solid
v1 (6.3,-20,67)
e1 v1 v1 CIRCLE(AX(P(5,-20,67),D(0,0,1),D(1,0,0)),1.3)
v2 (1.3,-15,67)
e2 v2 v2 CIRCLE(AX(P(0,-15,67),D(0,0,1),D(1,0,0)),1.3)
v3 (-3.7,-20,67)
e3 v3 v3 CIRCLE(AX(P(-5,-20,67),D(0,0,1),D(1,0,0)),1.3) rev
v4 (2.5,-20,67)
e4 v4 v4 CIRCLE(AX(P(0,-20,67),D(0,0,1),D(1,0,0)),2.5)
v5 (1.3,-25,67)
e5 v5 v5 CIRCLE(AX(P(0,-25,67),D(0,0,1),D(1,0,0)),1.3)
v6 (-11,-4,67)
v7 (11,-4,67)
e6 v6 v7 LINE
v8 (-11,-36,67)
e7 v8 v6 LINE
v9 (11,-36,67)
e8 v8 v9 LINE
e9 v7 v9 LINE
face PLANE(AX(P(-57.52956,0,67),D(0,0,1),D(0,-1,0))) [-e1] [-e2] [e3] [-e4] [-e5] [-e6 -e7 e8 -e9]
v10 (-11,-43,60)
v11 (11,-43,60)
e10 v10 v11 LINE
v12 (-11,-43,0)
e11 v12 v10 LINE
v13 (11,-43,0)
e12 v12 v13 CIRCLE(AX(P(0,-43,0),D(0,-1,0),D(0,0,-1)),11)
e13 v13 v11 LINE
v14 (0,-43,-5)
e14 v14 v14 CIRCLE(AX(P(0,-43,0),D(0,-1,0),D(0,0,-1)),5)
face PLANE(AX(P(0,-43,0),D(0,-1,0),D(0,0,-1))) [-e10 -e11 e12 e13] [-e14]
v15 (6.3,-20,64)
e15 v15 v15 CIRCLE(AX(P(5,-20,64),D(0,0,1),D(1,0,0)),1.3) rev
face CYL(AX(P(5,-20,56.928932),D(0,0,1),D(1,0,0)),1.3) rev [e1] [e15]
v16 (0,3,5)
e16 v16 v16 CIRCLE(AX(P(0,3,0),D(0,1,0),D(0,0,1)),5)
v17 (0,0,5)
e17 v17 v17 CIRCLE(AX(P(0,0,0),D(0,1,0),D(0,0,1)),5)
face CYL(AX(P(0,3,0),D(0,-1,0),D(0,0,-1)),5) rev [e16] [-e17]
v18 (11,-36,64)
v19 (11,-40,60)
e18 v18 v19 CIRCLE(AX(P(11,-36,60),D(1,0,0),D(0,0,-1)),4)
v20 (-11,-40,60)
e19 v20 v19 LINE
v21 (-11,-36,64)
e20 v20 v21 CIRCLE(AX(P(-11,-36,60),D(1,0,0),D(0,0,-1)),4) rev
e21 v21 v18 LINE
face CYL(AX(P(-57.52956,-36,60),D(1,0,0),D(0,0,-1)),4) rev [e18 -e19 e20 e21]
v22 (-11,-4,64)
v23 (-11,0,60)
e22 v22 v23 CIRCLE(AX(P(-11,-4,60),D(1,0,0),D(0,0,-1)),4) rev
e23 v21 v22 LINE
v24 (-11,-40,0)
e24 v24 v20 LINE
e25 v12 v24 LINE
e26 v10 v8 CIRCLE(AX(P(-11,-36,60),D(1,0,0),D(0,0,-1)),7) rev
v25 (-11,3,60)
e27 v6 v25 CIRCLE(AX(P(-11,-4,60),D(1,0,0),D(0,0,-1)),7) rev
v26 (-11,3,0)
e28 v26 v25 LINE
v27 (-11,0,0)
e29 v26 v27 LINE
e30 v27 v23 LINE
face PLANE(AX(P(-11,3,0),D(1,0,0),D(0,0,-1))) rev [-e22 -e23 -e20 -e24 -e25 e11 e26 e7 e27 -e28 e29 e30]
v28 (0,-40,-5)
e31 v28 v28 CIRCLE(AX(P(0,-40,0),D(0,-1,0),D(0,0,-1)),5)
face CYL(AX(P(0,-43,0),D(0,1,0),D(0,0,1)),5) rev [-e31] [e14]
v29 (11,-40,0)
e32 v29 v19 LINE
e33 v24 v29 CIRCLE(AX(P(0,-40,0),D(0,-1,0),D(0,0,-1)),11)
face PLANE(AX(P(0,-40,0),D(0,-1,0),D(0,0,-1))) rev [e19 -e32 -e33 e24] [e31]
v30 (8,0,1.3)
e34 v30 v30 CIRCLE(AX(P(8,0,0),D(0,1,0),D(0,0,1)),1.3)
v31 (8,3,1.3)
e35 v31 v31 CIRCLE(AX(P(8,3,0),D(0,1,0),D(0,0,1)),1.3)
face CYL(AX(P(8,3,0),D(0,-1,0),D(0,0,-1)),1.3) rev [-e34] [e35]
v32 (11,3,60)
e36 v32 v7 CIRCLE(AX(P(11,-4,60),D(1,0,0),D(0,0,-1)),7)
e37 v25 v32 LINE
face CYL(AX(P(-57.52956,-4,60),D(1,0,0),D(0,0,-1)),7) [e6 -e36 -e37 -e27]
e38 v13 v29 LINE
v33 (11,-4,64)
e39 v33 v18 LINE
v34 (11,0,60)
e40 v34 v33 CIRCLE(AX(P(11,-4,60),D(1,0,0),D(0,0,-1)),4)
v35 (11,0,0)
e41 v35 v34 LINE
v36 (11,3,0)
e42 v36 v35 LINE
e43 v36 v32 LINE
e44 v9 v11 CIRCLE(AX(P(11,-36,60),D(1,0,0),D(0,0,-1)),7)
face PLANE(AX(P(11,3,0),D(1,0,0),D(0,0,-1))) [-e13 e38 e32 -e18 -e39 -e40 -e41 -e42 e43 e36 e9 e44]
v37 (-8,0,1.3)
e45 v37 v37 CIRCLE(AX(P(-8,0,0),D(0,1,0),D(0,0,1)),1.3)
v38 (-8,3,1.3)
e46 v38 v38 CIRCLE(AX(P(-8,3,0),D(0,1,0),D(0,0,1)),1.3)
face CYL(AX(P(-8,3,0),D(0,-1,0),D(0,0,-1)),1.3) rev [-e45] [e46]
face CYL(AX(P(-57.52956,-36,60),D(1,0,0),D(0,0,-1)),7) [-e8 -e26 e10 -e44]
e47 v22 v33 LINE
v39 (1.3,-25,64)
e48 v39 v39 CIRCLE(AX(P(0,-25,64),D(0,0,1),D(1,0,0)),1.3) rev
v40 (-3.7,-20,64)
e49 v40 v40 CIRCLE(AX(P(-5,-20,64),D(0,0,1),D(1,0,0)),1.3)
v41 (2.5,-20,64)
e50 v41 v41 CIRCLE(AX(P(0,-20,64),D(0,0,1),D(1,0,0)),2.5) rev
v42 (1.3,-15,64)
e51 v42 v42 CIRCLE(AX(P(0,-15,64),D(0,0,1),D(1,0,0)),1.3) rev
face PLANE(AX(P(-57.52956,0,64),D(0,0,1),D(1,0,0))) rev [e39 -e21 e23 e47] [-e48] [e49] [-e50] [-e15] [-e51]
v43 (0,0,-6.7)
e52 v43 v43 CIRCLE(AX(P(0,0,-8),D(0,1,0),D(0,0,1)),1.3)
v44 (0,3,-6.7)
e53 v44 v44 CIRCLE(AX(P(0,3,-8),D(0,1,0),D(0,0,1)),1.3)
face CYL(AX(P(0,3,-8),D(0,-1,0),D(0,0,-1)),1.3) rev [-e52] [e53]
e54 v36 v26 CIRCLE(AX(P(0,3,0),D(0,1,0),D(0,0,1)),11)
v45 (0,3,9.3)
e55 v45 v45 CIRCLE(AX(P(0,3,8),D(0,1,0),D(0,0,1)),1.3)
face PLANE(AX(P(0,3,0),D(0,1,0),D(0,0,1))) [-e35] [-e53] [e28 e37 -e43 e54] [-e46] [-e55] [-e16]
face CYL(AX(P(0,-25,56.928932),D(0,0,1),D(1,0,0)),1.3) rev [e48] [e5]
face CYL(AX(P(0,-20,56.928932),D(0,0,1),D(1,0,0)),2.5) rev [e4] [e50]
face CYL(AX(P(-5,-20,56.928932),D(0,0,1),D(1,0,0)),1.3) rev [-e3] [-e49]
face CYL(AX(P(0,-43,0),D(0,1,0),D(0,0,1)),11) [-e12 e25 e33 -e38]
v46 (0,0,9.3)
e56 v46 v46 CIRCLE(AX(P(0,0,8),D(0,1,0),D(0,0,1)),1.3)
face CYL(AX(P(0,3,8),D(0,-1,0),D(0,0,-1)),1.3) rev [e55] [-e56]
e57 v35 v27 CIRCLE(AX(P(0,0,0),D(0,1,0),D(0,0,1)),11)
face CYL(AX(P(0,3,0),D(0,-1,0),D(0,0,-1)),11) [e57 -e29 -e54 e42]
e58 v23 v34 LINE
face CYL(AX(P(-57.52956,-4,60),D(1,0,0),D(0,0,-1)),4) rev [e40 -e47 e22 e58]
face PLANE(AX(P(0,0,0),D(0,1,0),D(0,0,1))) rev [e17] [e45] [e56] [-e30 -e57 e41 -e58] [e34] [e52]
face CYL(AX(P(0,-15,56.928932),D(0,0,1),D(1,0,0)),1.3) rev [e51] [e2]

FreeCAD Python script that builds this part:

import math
import FreeCAD as App
import Part
import Sketcher

doc = App.newDocument("Part")
body = doc.addObject("PartDesign::Body", "Body")

sketch1 = body.newObject("Sketcher::SketchObject", "Sketch")
sketch1.AttachmentSupport = (doc.getObject("XZ_Plane"), [""])
sketch1.MapMode = "FlatFace"
sketch1.addGeometry([
    Part.LineSegment(App.Vector(11, 60, 0), App.Vector(11, 0, 0)),
    Part.ArcOfCircle(Part.Circle(App.Vector(0, 0, 0), App.Vector(0, 0, 1), 11), math.radians(180), math.radians(360)),
    Part.LineSegment(App.Vector(-11, 0, 0), App.Vector(-11, 60, 0)),
    Part.LineSegment(App.Vector(-11, 60, 0), App.Vector(11, 60, 0)),
    Part.Circle(App.Vector(0, 8, 0), App.Vector(0, 0, 1), 1.3),
    Part.Circle(App.Vector(8, 0, 0), App.Vector(0, 0, 1), 1.3),
    Part.Circle(App.Vector(-8, 0, 0), App.Vector(0, 0, 1), 1.3),
    Part.Circle(App.Vector(0, 0, 0), App.Vector(0, 0, 1), 5),
    Part.Circle(App.Vector(0, -8, 0), App.Vector(0, 0, 1), 1.3),
], False)
sketch1.addConstraint([
    Sketcher.Constraint("Tangent", 0, 2, 1, 2),
    Sketcher.Constraint("Tangent", 1, 1, 2, 1),
    Sketcher.Constraint("Coincident", 2, 2, 3, 1),
    Sketcher.Constraint("Coincident", 3, 2, 0, 1),
    Sketcher.Constraint("Vertical", 0),
    Sketcher.Constraint("Vertical", 2),
    Sketcher.Constraint("Horizontal", 3),
    Sketcher.Constraint("Coincident", 1, 3, -1, 1),
    Sketcher.Constraint("Coincident", 7, 3, -1, 1),
    Sketcher.Constraint("Equal", 4, 5),
    Sketcher.Constraint("Equal", 5, 6),
    Sketcher.Constraint("Equal", 6, 8),
    Sketcher.Constraint("Symmetric", 5, 3, 6, 3, -1, 1),
    Sketcher.Constraint("Symmetric", 4, 3, 8, 3, -1, 1),
    Sketcher.Constraint("PointOnObject", 4, 3, -2),
    Sketcher.Constraint("PointOnObject", 5, 3, -1),
    Sketcher.Constraint("Diameter", 7, 10.0),
    Sketcher.Constraint("Radius", 1, 11.0),
    Sketcher.Constraint("Diameter", 4, 2.6),
    Sketcher.Constraint("DistanceY", 0, 2, 0, 1, 60.0),
    Sketcher.Constraint("DistanceY", -1, 1, 4, 3, 8.0),
    Sketcher.Constraint("DistanceX", -1, 1, 5, 3, 8.0),
])
pad1 = body.newObject("PartDesign::Pad", "Pad")
pad1.Profile = sketch1
pad1.Length = 3
pad1.Reversed = True

sketch2 = body.newObject("Sketcher::SketchObject", "Sketch001")
sketch2.AttachmentSupport = (doc.getObject("YZ_Plane"), [""])
sketch2.MapMode = "FlatFace"
sketch2.AttachmentOffset = App.Placement(App.Vector(0, 0, 11), App.Rotation())
sketch2.addGeometry([
    Part.LineSegment(App.Vector(-4, 67, 0), App.Vector(-36, 67, 0)),
    Part.ArcOfCircle(Part.Circle(App.Vector(-36, 60, 0), App.Vector(0, 0, 1), 7), math.radians(90), math.radians(180)),
    Part.LineSegment(App.Vector(-43, 60, 0), App.Vector(-40, 60, 0)),
    Part.ArcOfCircle(Part.Circle(App.Vector(-36, 60, 0), App.Vector(0, 0, 1), 4), math.radians(90), math.radians(180)),
    Part.LineSegment(App.Vector(-36, 64, 0), App.Vector(-4, 64, 0)),
    Part.ArcOfCircle(Part.Circle(App.Vector(-4, 60, 0), App.Vector(0, 0, 1), 4), math.radians(0), math.radians(90)),
    Part.LineSegment(App.Vector(0, 60, 0), App.Vector(3, 60, 0)),
    Part.ArcOfCircle(Part.Circle(App.Vector(-4, 60, 0), App.Vector(0, 0, 1), 7), math.radians(0), math.radians(90)),
], False)
sketch2.addConstraint([
    Sketcher.Constraint("Tangent", 0, 2, 1, 1),
    Sketcher.Constraint("Coincident", 1, 2, 2, 1),
    Sketcher.Constraint("Coincident", 2, 2, 3, 2),
    Sketcher.Constraint("Tangent", 3, 1, 4, 1),
    Sketcher.Constraint("Tangent", 4, 2, 5, 2),
    Sketcher.Constraint("Coincident", 5, 1, 6, 1),
    Sketcher.Constraint("Coincident", 6, 2, 7, 1),
    Sketcher.Constraint("Tangent", 7, 2, 0, 1),
    Sketcher.Constraint("Horizontal", 0),
    Sketcher.Constraint("Horizontal", 2),
    Sketcher.Constraint("Horizontal", 4),
    Sketcher.Constraint("Horizontal", 6),
    Sketcher.Constraint("Coincident", 3, 3, 1, 3),
    Sketcher.Constraint("Coincident", 7, 3, 5, 3),
    Sketcher.Constraint("Equal", 3, 5),
    Sketcher.Constraint("PointOnObject", 5, 1, -2),
    Sketcher.Constraint("Horizontal", 7, 3, 1, 2),
    Sketcher.Constraint("Horizontal", 2, 2, 5, 1),
    Sketcher.Constraint("Radius", 1, 7.0),
    Sketcher.Constraint("Radius", 3, 4.0),
    Sketcher.Constraint("DistanceX", 0, 2, 0, 1, 32.0),
    Sketcher.Constraint("DistanceY", -1, 1, 1, 3, 60.0),
])
pad2 = body.newObject("PartDesign::Pad", "Pad001")
pad2.Profile = sketch2
pad2.Length = 22
pad2.Reversed = True

sketch3 = body.newObject("Sketcher::SketchObject", "Sketch002")
sketch3.AttachmentSupport = (doc.getObject("XZ_Plane"), [""])
sketch3.MapMode = "FlatFace"
sketch3.AttachmentOffset = App.Placement(App.Vector(0, 0, 43), App.Rotation())
sketch3.addGeometry([
    Part.LineSegment(App.Vector(11, 0, 0), App.Vector(11, 60, 0)),
    Part.LineSegment(App.Vector(11, 60, 0), App.Vector(-11, 60, 0)),
    Part.LineSegment(App.Vector(-11, 60, 0), App.Vector(-11, 0, 0)),
    Part.ArcOfCircle(Part.Circle(App.Vector(0, 0, 0), App.Vector(0, 0, 1), 11), math.radians(180), math.radians(360)),
    Part.Circle(App.Vector(0, 0, 0), App.Vector(0, 0, 1), 5),
], False)
sketch3.addConstraint([
    Sketcher.Constraint("Coincident", 0, 2, 1, 1),
    Sketcher.Constraint("Coincident", 1, 2, 2, 1),
    Sketcher.Constraint("Tangent", 2, 2, 3, 1),
    Sketcher.Constraint("Tangent", 3, 2, 0, 1),
    Sketcher.Constraint("Vertical", 0),
    Sketcher.Constraint("Horizontal", 1),
    Sketcher.Constraint("Vertical", 2),
    Sketcher.Constraint("Coincident", 3, 3, -1, 1),
    Sketcher.Constraint("Coincident", 4, 3, -1, 1),
    Sketcher.Constraint("Diameter", 4, 10.0),
    Sketcher.Constraint("Radius", 3, 11.0),
    Sketcher.Constraint("DistanceY", 0, 1, 0, 2, 60.0),
])
pad3 = body.newObject("PartDesign::Pad", "Pad002")
pad3.Profile = sketch3
pad3.Length = 3
pad3.Reversed = True

sketch4 = body.newObject("Sketcher::SketchObject", "Sketch003")
sketch4.AttachmentSupport = (doc.getObject("XY_Plane"), [""])
sketch4.MapMode = "FlatFace"
sketch4.AttachmentOffset = App.Placement(App.Vector(0, 0, 67), App.Rotation())
sketch4.addGeometry([
    Part.Circle(App.Vector(0, -20, 0), App.Vector(0, 0, 1), 2.5),
    Part.Circle(App.Vector(5, -20, 0), App.Vector(0, 0, 1), 1.3),
    Part.Circle(App.Vector(-5, -20, 0), App.Vector(0, 0, 1), 1.3),
    Part.Circle(App.Vector(0, -25, 0), App.Vector(0, 0, 1), 1.3),
    Part.Circle(App.Vector(0, -15, 0), App.Vector(0, 0, 1), 1.3),
], False)
sketch4.addConstraint([
    Sketcher.Constraint("Equal", 1, 2),
    Sketcher.Constraint("Equal", 2, 3),
    Sketcher.Constraint("Equal", 3, 4),
    Sketcher.Constraint("Symmetric", 1, 3, 2, 3, -2),
    Sketcher.Constraint("PointOnObject", 0, 3, -2),
    Sketcher.Constraint("PointOnObject", 3, 3, -2),
    Sketcher.Constraint("PointOnObject", 4, 3, -2),
    Sketcher.Constraint("Horizontal", 0, 3, 1, 3),
    Sketcher.Constraint("Diameter", 0, 5.0),
    Sketcher.Constraint("Diameter", 1, 2.6),
    Sketcher.Constraint("DistanceY", 0, 3, -1, 1, 20.0),
    Sketcher.Constraint("DistanceX", -1, 1, 1, 3, 5.0),
    Sketcher.Constraint("DistanceY", 3, 3, -1, 1, 25.0),
    Sketcher.Constraint("DistanceY", 4, 3, -1, 1, 15.0),
])
pocket1 = body.newObject("PartDesign::Pocket", "Pocket")
pocket1.Profile = sketch4
pocket1.Length = 3

doc.recompute()
